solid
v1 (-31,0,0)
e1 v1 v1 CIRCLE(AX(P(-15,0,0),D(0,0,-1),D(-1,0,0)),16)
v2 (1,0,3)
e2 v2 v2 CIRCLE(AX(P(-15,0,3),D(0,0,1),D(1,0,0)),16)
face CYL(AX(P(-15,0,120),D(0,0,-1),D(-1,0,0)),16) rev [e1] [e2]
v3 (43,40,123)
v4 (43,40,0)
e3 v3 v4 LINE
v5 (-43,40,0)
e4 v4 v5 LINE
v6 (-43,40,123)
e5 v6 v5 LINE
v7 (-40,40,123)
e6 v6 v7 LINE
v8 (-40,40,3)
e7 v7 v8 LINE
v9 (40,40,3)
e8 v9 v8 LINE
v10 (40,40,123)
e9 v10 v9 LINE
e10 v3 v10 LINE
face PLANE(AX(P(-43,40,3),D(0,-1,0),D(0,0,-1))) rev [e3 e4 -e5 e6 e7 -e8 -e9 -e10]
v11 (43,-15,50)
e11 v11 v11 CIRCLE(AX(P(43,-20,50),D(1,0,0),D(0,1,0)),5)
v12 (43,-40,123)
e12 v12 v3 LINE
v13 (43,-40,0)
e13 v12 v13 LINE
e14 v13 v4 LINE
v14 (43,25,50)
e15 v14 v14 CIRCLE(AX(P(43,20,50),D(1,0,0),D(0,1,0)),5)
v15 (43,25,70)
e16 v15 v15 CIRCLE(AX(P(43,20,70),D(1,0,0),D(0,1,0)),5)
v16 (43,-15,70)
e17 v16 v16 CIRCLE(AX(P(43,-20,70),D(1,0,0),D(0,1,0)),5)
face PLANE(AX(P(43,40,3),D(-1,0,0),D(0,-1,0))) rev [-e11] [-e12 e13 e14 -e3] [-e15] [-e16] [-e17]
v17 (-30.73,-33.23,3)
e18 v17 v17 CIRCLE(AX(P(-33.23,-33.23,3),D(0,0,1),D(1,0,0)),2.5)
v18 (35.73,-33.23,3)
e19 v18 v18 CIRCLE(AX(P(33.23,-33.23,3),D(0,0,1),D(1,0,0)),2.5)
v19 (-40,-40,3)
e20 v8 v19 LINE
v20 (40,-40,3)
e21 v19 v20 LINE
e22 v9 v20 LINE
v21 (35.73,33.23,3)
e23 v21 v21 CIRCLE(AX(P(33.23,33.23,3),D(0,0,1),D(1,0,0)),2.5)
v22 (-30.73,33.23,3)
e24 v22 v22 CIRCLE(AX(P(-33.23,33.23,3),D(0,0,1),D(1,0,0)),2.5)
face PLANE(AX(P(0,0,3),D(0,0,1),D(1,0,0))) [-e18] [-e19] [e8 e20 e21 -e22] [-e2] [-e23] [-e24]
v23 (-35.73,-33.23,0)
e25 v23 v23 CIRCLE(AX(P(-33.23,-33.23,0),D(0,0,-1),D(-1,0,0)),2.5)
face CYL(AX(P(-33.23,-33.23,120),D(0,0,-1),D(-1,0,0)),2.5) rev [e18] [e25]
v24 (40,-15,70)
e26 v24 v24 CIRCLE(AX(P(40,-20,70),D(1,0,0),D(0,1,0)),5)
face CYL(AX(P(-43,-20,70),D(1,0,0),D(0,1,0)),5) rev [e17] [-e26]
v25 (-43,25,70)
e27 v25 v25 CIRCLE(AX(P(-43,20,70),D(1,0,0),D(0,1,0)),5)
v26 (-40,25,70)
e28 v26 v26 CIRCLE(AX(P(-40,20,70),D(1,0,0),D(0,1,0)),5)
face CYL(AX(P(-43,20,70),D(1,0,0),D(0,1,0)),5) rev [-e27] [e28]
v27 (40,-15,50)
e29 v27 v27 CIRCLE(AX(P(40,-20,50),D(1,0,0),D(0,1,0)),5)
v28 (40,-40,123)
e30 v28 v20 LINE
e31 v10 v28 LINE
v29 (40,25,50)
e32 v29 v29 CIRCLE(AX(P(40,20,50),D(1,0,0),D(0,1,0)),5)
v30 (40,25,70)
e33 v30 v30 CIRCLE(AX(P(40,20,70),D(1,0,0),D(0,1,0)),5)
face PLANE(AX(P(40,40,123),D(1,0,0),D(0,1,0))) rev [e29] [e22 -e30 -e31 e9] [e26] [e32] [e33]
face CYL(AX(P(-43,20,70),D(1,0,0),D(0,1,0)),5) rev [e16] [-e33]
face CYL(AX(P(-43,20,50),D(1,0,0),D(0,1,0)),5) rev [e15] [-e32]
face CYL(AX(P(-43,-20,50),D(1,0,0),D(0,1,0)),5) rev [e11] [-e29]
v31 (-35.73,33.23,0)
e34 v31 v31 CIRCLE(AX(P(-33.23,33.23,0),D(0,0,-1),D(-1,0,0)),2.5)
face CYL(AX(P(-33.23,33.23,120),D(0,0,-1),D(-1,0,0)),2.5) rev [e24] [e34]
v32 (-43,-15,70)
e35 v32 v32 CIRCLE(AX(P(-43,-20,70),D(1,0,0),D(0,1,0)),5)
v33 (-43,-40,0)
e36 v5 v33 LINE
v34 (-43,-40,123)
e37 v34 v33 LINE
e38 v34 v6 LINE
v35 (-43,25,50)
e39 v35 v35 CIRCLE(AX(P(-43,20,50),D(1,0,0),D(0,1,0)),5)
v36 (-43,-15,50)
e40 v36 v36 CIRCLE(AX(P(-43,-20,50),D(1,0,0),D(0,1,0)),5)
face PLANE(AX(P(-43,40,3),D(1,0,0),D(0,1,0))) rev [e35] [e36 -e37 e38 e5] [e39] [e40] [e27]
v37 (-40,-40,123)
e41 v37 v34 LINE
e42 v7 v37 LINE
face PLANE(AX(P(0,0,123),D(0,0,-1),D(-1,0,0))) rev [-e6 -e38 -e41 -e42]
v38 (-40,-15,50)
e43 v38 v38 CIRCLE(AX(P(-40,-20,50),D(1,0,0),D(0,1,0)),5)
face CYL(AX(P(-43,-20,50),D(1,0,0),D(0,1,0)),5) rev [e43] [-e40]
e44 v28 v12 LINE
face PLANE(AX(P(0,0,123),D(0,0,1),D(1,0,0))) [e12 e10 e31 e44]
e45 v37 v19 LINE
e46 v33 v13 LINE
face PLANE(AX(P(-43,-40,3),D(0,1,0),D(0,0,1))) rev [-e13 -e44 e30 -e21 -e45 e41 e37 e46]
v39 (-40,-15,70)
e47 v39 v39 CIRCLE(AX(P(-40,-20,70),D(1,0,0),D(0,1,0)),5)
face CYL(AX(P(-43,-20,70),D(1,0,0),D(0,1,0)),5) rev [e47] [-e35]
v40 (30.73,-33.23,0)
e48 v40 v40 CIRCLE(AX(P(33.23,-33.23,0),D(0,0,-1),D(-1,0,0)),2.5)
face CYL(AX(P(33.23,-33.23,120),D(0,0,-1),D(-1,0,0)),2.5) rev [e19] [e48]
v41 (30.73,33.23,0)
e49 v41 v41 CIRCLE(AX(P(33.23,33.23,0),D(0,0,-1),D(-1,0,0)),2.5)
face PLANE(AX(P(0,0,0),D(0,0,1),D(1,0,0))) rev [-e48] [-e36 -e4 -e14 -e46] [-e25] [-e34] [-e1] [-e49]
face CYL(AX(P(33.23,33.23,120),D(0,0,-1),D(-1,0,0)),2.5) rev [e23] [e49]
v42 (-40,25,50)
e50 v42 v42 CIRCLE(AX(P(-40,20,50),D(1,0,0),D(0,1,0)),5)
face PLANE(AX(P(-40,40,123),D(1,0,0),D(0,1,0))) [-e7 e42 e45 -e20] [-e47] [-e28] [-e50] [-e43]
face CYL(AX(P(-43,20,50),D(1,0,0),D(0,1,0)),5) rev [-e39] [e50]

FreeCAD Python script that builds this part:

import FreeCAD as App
import Part
import Sketcher


def add_polygon(sketch, points):
    """Adds a closed chain of lines whose ends are joined by coincident constraints."""
    first, n = sketch.GeometryCount, len(points)
    for a, b in zip(points, points[1:] + points[:1]):
        sketch.addGeometry(Part.LineSegment(App.Vector(*a, 0), App.Vector(*b, 0)), False)
    for i in range(n):
        sketch.addConstraint(Sketcher.Constraint("Coincident", first + i, 2, first + (i + 1) % n, 1))

doc = App.newDocument("Part")
body = doc.addObject("PartDesign::Body", "Body")

# Sketch on XY plane
sketch1 = body.newObject("Sketcher::SketchObject", "Sketch")
sketch1.AttachmentSupport = (doc.getObject("XY_Plane"), [""])
sketch1.MapMode = "FlatFace"
add_polygon(sketch1, [(-43, 40), (-43, -40), (43, -40), (43, 40)])  # lines 0-3
sketch1.addConstraint([
    Sketcher.Constraint("Vertical", 0),
    Sketcher.Constraint("Horizontal", 1),
    Sketcher.Constraint("Vertical", 2),
    Sketcher.Constraint("Horizontal", 3),
    Sketcher.Constraint("Symmetric", 0, 2, 2, 2, -1, 1),
    Sketcher.Constraint("DistanceX", 1, 1, 1, 2, 86.0),
    Sketcher.Constraint("DistanceY", 0, 2, 0, 1, 80.0),
])
pad1 = body.newObject("PartDesign::Pad", "Pad")
pad1.Profile = sketch1
pad1.Length = 3

# Sketch on XY plane
sketch2 = body.newObject("Sketcher::SketchObject", "Sketch001")
sketch2.AttachmentSupport = (doc.getObject("XY_Plane"), [""])
sketch2.MapMode = "FlatFace"
sketch2.AttachmentOffset = App.Placement(App.Vector(0, 0, 3), App.Rotation())
add_polygon(sketch2, [(-43, 40), (-43, -40), (-40, -40), (-40, 40)])  # lines 0-3
add_polygon(sketch2, [(40, 40), (40, -40), (43, -40), (43, 40)])  # lines 4-7
sketch2.addConstraint([
    Sketcher.Constraint("Vertical", 0),
    Sketcher.Constraint("Horizontal", 1),
    Sketcher.Constraint("Vertical", 2),
    Sketcher.Constraint("Horizontal", 3),
    Sketcher.Constraint("Vertical", 4),
    Sketcher.Constraint("Horizontal", 5),
    Sketcher.Constraint("Vertical", 6),
    Sketcher.Constraint("Horizontal", 7),
    Sketcher.Constraint("Symmetric", 2, 2, 4, 2, -1, 1),
    Sketcher.Constraint("Symmetric", 0, 2, 6, 2, -1, 1),
    Sketcher.Constraint("Horizontal", 1, 2, 4, 2),
    Sketcher.Constraint("DistanceX", 1, 1, 1, 2, 3.0),
    Sketcher.Constraint("DistanceY", 0, 2, 0, 1, 80.0),
    Sketcher.Constraint("DistanceX", 0, 2, -1, 1, 43.0),
])
pad2 = body.newObject("PartDesign::Pad", "Pad001")
pad2.Profile = sketch2
pad2.Length = 120

# Sketch on XY plane
sketch3 = body.newObject("Sketcher::SketchObject", "Sketch002")
sketch3.AttachmentSupport = (doc.getObject("XY_Plane"), [""])
sketch3.MapMode = "FlatFace"
sketch3.addGeometry(Part.Circle(App.Vector(-15, 0, 0), App.Vector(0, 0, 1), 16), False)
sketch3.addConstraint([
    Sketcher.Constraint("PointOnObject", 0, 3, -1),
    Sketcher.Constraint("Diameter", 0, 32.0),
    Sketcher.Constraint("DistanceX", 0, 3, -1, 1, 15.0),
])
pocket1 = body.newObject("PartDesign::Pocket", "Pocket")
pocket1.Profile = sketch3
pocket1.Length = 120
pocket1.Reversed = True

# Sketch on XY plane
sketch4 = body.newObject("Sketcher::SketchObject", "Sketch003")
sketch4.AttachmentSupport = (doc.getObject("XY_Plane"), [""])
sketch4.MapMode = "FlatFace"
sketch4.addGeometry([
    Part.Circle(App.Vector(33.23, 33.23, 0), App.Vector(0, 0, 1), 2.5),
    Part.Circle(App.Vector(33.23, -33.23, 0), App.Vector(0, 0, 1), 2.5),
    Part.Circle(App.Vector(-33.23, -33.23, 0), App.Vector(0, 0, 1), 2.5),
    Part.Circle(App.Vector(-33.23, 33.23, 0), App.Vector(0, 0, 1), 2.5),
], False)
sketch4.addConstraint([
    Sketcher.Constraint("Equal", 0, 1),
    Sketcher.Constraint("Equal", 1, 2),
    Sketcher.Constraint("Equal", 2, 3),
    Sketcher.Constraint("Symmetric", 0, 3, 2, 3, -1, 1),
    Sketcher.Constraint("Symmetric", 1, 3, 3, 3, -1, 1),
    Sketcher.Constraint("Symmetric", 1, 3, 2, 3, -2),
    Sketcher.Constraint("Diameter", 0, 5.0),
    Sketcher.Constraint("DistanceX", -1, 1, 0, 3, 33.23),
    Sketcher.Constraint("DistanceY", -1, 1, 0, 3, 33.23),
])
pocket2 = body.newObject("PartDesign::Pocket", "Pocket001")
pocket2.Profile = sketch4
pocket2.Length = 120
pocket2.Reversed = True

# Sketch on YZ plane
sketch5 = body.newObject("Sketcher::SketchObject", "Sketch004")
sketch5.AttachmentSupport = (doc.getObject("YZ_Plane"), [""])
sketch5.MapMode = "FlatFace"
sketch5.AttachmentOffset = App.Placement(App.Vector(0, 0, 43), App.Rotation())
sketch5.addGeometry([
    Part.Circle(App.Vector(20, 50, 0), App.Vector(0, 0, 1), 5),
    Part.Circle(App.Vector(-20, 50, 0), App.Vector(0, 0, 1), 5),
    Part.Circle(App.Vector(20, 70, 0), App.Vector(0, 0, 1), 5),
    Part.Circle(App.Vector(-20, 70, 0), App.Vector(0, 0, 1), 5),
], False)
sketch5.addConstraint([
    Sketcher.Constraint("Equal", 0, 1),
    Sketcher.Constraint("Equal", 1, 2),
    Sketcher.Constraint("Equal", 2, 3),
    Sketcher.Constraint("Symmetric", 0, 3, 1, 3, -2),
    Sketcher.Constraint("Symmetric", 2, 3, 3, 3, -2),
    Sketcher.Constraint("Vertical", 0, 3, 2, 3),
    Sketcher.Constraint("Diameter", 0, 10.0),
    Sketcher.Constraint("DistanceX", -1, 1, 0, 3, 20.0),
    Sketcher.Constraint("DistanceY", -1, 1, 0, 3, 50.0),
    Sketcher.Constraint("DistanceY", -1, 1, 2, 3, 70.0),
])
pocket3 = body.newObject("PartDesign::Pocket", "Pocket002")
pocket3.Profile = sketch5
pocket3.Type = "ThroughAll"

doc.recompute()
